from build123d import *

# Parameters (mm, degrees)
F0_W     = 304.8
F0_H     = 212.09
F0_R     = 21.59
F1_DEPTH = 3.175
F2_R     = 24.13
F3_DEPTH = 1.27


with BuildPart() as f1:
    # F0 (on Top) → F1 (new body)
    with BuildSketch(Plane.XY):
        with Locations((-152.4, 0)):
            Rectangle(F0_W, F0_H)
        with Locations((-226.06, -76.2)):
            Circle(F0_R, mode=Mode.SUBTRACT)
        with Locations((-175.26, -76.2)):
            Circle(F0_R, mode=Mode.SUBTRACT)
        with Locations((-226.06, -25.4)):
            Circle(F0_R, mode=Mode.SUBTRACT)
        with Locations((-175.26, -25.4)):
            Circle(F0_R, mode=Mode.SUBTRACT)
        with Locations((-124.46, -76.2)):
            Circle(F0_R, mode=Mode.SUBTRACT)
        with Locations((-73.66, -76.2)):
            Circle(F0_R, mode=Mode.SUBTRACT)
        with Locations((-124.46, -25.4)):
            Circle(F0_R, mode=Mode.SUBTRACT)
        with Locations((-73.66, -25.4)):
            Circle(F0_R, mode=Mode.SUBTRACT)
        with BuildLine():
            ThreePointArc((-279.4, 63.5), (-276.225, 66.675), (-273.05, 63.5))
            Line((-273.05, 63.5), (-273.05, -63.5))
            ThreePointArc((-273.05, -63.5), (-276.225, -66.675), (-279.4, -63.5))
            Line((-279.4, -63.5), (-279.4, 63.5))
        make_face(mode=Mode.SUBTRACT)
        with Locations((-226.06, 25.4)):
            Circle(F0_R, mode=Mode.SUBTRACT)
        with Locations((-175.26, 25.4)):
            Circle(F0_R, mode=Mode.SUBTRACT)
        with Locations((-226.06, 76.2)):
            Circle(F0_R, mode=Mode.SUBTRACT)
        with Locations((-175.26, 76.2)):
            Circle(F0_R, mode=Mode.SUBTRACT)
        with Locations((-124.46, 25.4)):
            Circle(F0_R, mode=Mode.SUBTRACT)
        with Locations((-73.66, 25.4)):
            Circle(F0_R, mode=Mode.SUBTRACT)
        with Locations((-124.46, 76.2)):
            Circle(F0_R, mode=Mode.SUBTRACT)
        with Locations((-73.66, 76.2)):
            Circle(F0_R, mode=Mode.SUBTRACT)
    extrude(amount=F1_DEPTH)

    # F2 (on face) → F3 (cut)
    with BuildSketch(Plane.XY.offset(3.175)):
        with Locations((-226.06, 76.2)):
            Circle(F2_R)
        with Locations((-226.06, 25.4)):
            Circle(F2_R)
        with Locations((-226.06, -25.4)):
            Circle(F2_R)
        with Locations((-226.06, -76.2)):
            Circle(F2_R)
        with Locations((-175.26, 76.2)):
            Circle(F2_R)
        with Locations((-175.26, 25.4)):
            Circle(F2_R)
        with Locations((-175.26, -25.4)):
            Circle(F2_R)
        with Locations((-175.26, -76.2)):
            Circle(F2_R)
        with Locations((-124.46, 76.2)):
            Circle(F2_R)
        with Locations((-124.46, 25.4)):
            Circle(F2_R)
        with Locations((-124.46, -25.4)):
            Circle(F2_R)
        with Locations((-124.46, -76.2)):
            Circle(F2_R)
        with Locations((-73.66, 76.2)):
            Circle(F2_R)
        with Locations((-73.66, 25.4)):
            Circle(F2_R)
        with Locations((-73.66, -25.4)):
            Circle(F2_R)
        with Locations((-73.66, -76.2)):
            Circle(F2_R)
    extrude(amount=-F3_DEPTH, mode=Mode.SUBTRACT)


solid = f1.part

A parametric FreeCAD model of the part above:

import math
import FreeCAD as App
import Part
import Sketcher
from FreeCAD import Vector
Q = App.Units.Quantity

doc = App.newDocument("Part")
params = doc.addObject("Spreadsheet::Sheet", "Params")
for row, (alias, value) in enumerate([
    ("sketch1_diameter", "1.7 in"),
    ("sketch1_width", "12 in"),
    ("sketch1_height", "5 in"),
    ("sketch1_radius", "0.125 in"),
    ("sketch1_height2", "8.35 in"),
    ("pad1_length", "0.125 in"),
    ("sketch2_diameter", "1.9 in"),
    ("pocket1_length", "0.05 in"),
], start=1):
    params.set(f"A{row}", alias)
    params.set(f"B{row}", "=" + value)
    params.setAlias(f"B{row}", alias)

body = doc.addObject("PartDesign::Body", "Body")

# Sketch on XY plane
sketch1 = body.newObject("Sketcher::SketchObject", "Sketch")
sketch1.AttachmentSupport = (doc.getObject("XY_Plane"), [""])
sketch1.MapMode = "FlatFace"
sketch1.addGeometry(Part.LineSegment(Vector(-304.8, 106.045, 0), Vector(-304.8, -106.045, 0)), False)
sketch1.addGeometry(Part.LineSegment(Vector(-304.8, -106.045, 0), Vector(0, -106.045, 0)), False)
sketch1.addGeometry(Part.LineSegment(Vector(0, -106.045, 0), Vector(0, 106.045, 0)), False)
sketch1.addGeometry(Part.LineSegment(Vector(0, 106.045, 0), Vector(-304.8, 106.045, 0)), False)
sketch1.addGeometry(Part.Circle(Vector(-226.06, -76.2, 0), Vector(0, 0, 1), 21.59), False)
sketch1.addGeometry(Part.Circle(Vector(-175.26, -76.2, 0), Vector(0, 0, 1), 21.59), False)
sketch1.addGeometry(Part.Circle(Vector(-226.06, -25.4, 0), Vector(0, 0, 1), 21.59), False)
sketch1.addGeometry(Part.Circle(Vector(-175.26, -25.4, 0), Vector(0, 0, 1), 21.59), False)
sketch1.addGeometry(Part.Circle(Vector(-124.46, -76.2, 0), Vector(0, 0, 1), 21.59), False)
sketch1.addGeometry(Part.Circle(Vector(-73.66, -76.2, 0), Vector(0, 0, 1), 21.59), False)
sketch1.addGeometry(Part.Circle(Vector(-124.46, -25.4, 0), Vector(0, 0, 1), 21.59), False)
sketch1.addGeometry(Part.Circle(Vector(-73.66, -25.4, 0), Vector(0, 0, 1), 21.59), False)
sketch1.addGeometry(Part.LineSegment(Vector(-279.4, -63.5, 0), Vector(-279.4, 63.5, 0)), False)
sketch1.addGeometry(Part.ArcOfCircle(Part.Circle(Vector(-276.225, 63.5, 0), Vector(0, 0, 1), 3.175), math.radians(0), math.radians(180)), False)
sketch1.addGeometry(Part.LineSegment(Vector(-273.05, 63.5, 0), Vector(-273.05, -63.5, 0)), False)
sketch1.addGeometry(Part.ArcOfCircle(Part.Circle(Vector(-276.225, -63.5, 0), Vector(0, 0, 1), 3.175), math.radians(180), math.radians(360)), False)
sketch1.addGeometry(Part.Circle(Vector(-226.06, 25.4, 0), Vector(0, 0, 1), 21.59), False)
sketch1.addGeometry(Part.Circle(Vector(-175.26, 25.4, 0), Vector(0, 0, 1), 21.59), False)
sketch1.addGeometry(Part.Circle(Vector(-226.06, 76.2, 0), Vector(0, 0, 1), 21.59), False)
sketch1.addGeometry(Part.Circle(Vector(-175.26, 76.2, 0), Vector(0, 0, 1), 21.59), False)
sketch1.addGeometry(Part.Circle(Vector(-124.46, 25.4, 0), Vector(0, 0, 1), 21.59), False)
sketch1.addGeometry(Part.Circle(Vector(-73.66, 25.4, 0), Vector(0, 0, 1), 21.59), False)
sketch1.addGeometry(Part.Circle(Vector(-124.46, 76.2, 0), Vector(0, 0, 1), 21.59), False)
sketch1.addGeometry(Part.Circle(Vector(-73.66, 76.2, 0), Vector(0, 0, 1), 21.59), False)
sketch1.addConstraint(Sketcher.Constraint("Coincident", 0, 2, 1, 1))
sketch1.addConstraint(Sketcher.Constraint("Coincident", 1, 2, 2, 1))
sketch1.addConstraint(Sketcher.Constraint("Coincident", 2, 2, 3, 1))
sketch1.addConstraint(Sketcher.Constraint("Coincident", 3, 2, 0, 1))
sketch1.addConstraint(Sketcher.Constraint("Tangent", 12, 2, 13, 2))
sketch1.addConstraint(Sketcher.Constraint("Tangent", 13, 1, 14, 1))
sketch1.addConstraint(Sketcher.Constraint("Tangent", 14, 2, 15, 2))
sketch1.addConstraint(Sketcher.Constraint("Tangent", 15, 1, 12, 1))
sketch1.addConstraint(Sketcher.Constraint("Vertical", 0))
sketch1.addConstraint(Sketcher.Constraint("Horizontal", 1))
sketch1.addConstraint(Sketcher.Constraint("Vertical", 2))
sketch1.addConstraint(Sketcher.Constraint("Horizontal", 3))
sketch1.addConstraint(Sketcher.Constraint("Vertical", 12))
sketch1.addConstraint(Sketcher.Constraint("Vertical", 14))
sketch1.addConstraint(Sketcher.Constraint("Equal", 4, 5))
sketch1.addConstraint(Sketcher.Constraint("Equal", 5, 6))
sketch1.addConstraint(Sketcher.Constraint("Equal", 6, 7))
sketch1.addConstraint(Sketcher.Constraint("Equal", 7, 8))
sketch1.addConstraint(Sketcher.Constraint("Equal", 8, 9))
sketch1.addConstraint(Sketcher.Constraint("Equal", 9, 10))
sketch1.addConstraint(Sketcher.Constraint("Equal", 10, 11))
sketch1.addConstraint(Sketcher.Constraint("Equal", 11, 16))
sketch1.addConstraint(Sketcher.Constraint("Equal", 16, 17))
sketch1.addConstraint(Sketcher.Constraint("Equal", 17, 18))
sketch1.addConstraint(Sketcher.Constraint("Equal", 18, 19))
sketch1.addConstraint(Sketcher.Constraint("Equal", 19, 20))
sketch1.addConstraint(Sketcher.Constraint("Equal", 20, 21))
sketch1.addConstraint(Sketcher.Constraint("Equal", 21, 22))
sketch1.addConstraint(Sketcher.Constraint("Equal", 22, 23))
sketch1.addConstraint(Sketcher.Constraint("Symmetric", 1, 2, 2, 2, -1, 1))
sketch1.addConstraint(Sketcher.Constraint("Symmetric", 6, 3, 16, 3, -1))
sketch1.addConstraint(Sketcher.Constraint("Symmetric", 7, 3, 17, 3, -1))
sketch1.addConstraint(Sketcher.Constraint("Symmetric", 4, 3, 18, 3, -1))
sketch1.addConstraint(Sketcher.Constraint("Symmetric", 5, 3, 19, 3, -1))
sketch1.addConstraint(Sketcher.Constraint("Symmetric", 10, 3, 20, 3, -1))
sketch1.addConstraint(Sketcher.Constraint("Symmetric", 11, 3, 21, 3, -1))
sketch1.addConstraint(Sketcher.Constraint("Symmetric", 8, 3, 22, 3, -1))
sketch1.addConstraint(Sketcher.Constraint("Symmetric", 9, 3, 23, 3, -1))
sketch1.addConstraint(Sketcher.Constraint("Horizontal", 4, 3, 5, 3))
sketch1.addConstraint(Sketcher.Constraint("Horizontal", 6, 3, 7, 3))
sketch1.addConstraint(Sketcher.Constraint("Horizontal", 5, 3, 8, 3))
sketch1.addConstraint(Sketcher.Constraint("Horizontal", 8, 3, 9, 3))
sketch1.addConstraint(Sketcher.Constraint("Horizontal", 7, 3, 10, 3))
sketch1.addConstraint(Sketcher.Constraint("Horizontal", 10, 3, 11, 3))
sketch1.addConstraint(Sketcher.Constraint("Vertical", 4, 3, 6, 3))
sketch1.addConstraint(Sketcher.Constraint("Vertical", 5, 3, 7, 3))
sketch1.addConstraint(Sketcher.Constraint("Vertical", 8, 3, 10, 3))
sketch1.addConstraint(Sketcher.Constraint("Vertical", 9, 3, 11, 3))
sketch1.addConstraint(Sketcher.Constraint("Diameter", 4, Q("1.7 in")))
sketch1.addConstraint(Sketcher.Constraint("DistanceX", 1, 1, 1, 2, Q("12 in")))
sketch1.addConstraint(Sketcher.Constraint("DistanceY", 12, 1, 12, 2, Q("5 in")))
sketch1.addConstraint(Sketcher.Constraint("DistanceY", 4, 3, -1, 1, Q("3 in")))
sketch1.addConstraint(Sketcher.Constraint("DistanceY", 6, 3, -1, 1, Q("1 in")))
sketch1.addConstraint(Sketcher.Constraint("DistanceX", 12, 2, -1, 1, Q("11 in")))
sketch1.addConstraint(Sketcher.Constraint("Radius", 13, Q("0.125 in")))
sketch1.addConstraint(Sketcher.Constraint("DistanceX", 4, 3, 5, 3, Q("2 in")))
sketch1.addConstraint(Sketcher.Constraint("DistanceX", 5, 3, 8, 3, Q("2 in")))
sketch1.addConstraint(Sketcher.Constraint("DistanceX", 8, 3, 9, 3, Q("2 in")))
sketch1.addConstraint(Sketcher.Constraint("DistanceY", 0, 2, 0, 1, Q("8.35 in")))
sketch1.addConstraint(Sketcher.Constraint("DistanceX", 4, 3, -1, 1, Q("8.9 in")))
sketch1.addConstraint(Sketcher.Constraint("DistanceY", -1, 1, 13, 3, Q("2.5 in")))
sketch1.setExpression("Constraints[48]", "Params.sketch1_diameter")
sketch1.setExpression("Constraints[49]", "Params.sketch1_width")
sketch1.setExpression("Constraints[50]", "Params.sketch1_height")
sketch1.setExpression("Constraints[54]", "Params.sketch1_radius")
sketch1.setExpression("Constraints[58]", "Params.sketch1_height2")
pad1 = body.newObject("PartDesign::Pad", "Pad")
pad1.Profile = sketch1
pad1.setExpression("Length", "Params.pad1_length")

# Sketch on XY plane
sketch2 = body.newObject("Sketcher::SketchObject", "Sketch001")
sketch2.AttachmentSupport = (doc.getObject("XY_Plane"), [""])
sketch2.MapMode = "FlatFace"
sketch2.AttachmentOffset = App.Placement(Vector(0, 0, 0.125 * 25.4), App.Rotation())
sketch2.addGeometry(Part.Circle(Vector(-226.06, 76.2, 0), Vector(0, 0, 1), 24.13), False)
sketch2.addGeometry(Part.Circle(Vector(-226.06, 25.4, 0), Vector(0, 0, 1), 24.13), False)
sketch2.addGeometry(Part.Circle(Vector(-226.06, -25.4, 0), Vector(0, 0, 1), 24.13), False)
sketch2.addGeometry(Part.Circle(Vector(-226.06, -76.2, 0), Vector(0, 0, 1), 24.13), False)
sketch2.addGeometry(Part.Circle(Vector(-175.26, 76.2, 0), Vector(0, 0, 1), 24.13), False)
sketch2.addGeometry(Part.Circle(Vector(-175.26, 25.4, 0), Vector(0, 0, 1), 24.13), False)
sketch2.addGeometry(Part.Circle(Vector(-175.26, -25.4, 0), Vector(0, 0, 1), 24.13), False)
sketch2.addGeometry(Part.Circle(Vector(-175.26, -76.2, 0), Vector(0, 0, 1), 24.13), False)
sketch2.addGeometry(Part.Circle(Vector(-124.46, 76.2, 0), Vector(0, 0, 1), 24.13), False)
sketch2.addGeometry(Part.Circle(Vector(-124.46, 25.4, 0), Vector(0, 0, 1), 24.13), False)
sketch2.addGeometry(Part.Circle(Vector(-124.46, -25.4, 0), Vector(0, 0, 1), 24.13), False)
sketch2.addGeometry(Part.Circle(Vector(-124.46, -76.2, 0), Vector(0, 0, 1), 24.13), False)
sketch2.addGeometry(Part.Circle(Vector(-73.66, 76.2, 0), Vector(0, 0, 1), 24.13), False)
sketch2.addGeometry(Part.Circle(Vector(-73.66, 25.4, 0), Vector(0, 0, 1), 24.13), False)
sketch2.addGeometry(Part.Circle(Vector(-73.66, -25.4, 0), Vector(0, 0, 1), 24.13), False)
sketch2.addGeometry(Part.Circle(Vector(-73.66, -76.2, 0), Vector(0, 0, 1), 24.13), False)
sketch2.addConstraint(Sketcher.Constraint("Equal", 0, 1))
sketch2.addConstraint(Sketcher.Constraint("Equal", 1, 2))
sketch2.addConstraint(Sketcher.Constraint("Equal", 2, 3))
sketch2.addConstraint(Sketcher.Constraint("Equal", 3, 4))
sketch2.addConstraint(Sketcher.Constraint("Equal", 4, 5))
sketch2.addConstraint(Sketcher.Constraint("Equal", 5, 6))
sketch2.addConstraint(Sketcher.Constraint("Equal", 6, 7))
sketch2.addConstraint(Sketcher.Constraint("Equal", 7, 8))
sketch2.addConstraint(Sketcher.Constraint("Equal", 8, 9))
sketch2.addConstraint(Sketcher.Constraint("Equal", 9, 10))
sketch2.addConstraint(Sketcher.Constraint("Equal", 10, 11))
sketch2.addConstraint(Sketcher.Constraint("Equal", 11, 12))
sketch2.addConstraint(Sketcher.Constraint("Equal", 12, 13))
sketch2.addConstraint(Sketcher.Constraint("Equal", 13, 14))
sketch2.addConstraint(Sketcher.Constraint("Equal", 14, 15))
sketch2.addConstraint(Sketcher.Constraint("Symmetric", 1, 3, 2, 3, -1))
sketch2.addConstraint(Sketcher.Constraint("Symmetric", 0, 3, 3, 3, -1))
sketch2.addConstraint(Sketcher.Constraint("Symmetric", 5, 3, 6, 3, -1))
sketch2.addConstraint(Sketcher.Constraint("Symmetric", 4, 3, 7, 3, -1))
sketch2.addConstraint(Sketcher.Constraint("Symmetric", 9, 3, 10, 3, -1))
sketch2.addConstraint(Sketcher.Constraint("Symmetric", 8, 3, 11, 3, -1))
sketch2.addConstraint(Sketcher.Constraint("Symmetric", 13, 3, 14, 3, -1))
sketch2.addConstraint(Sketcher.Constraint("Symmetric", 12, 3, 15, 3, -1))
sketch2.addConstraint(Sketcher.Constraint("Horizontal", 0, 3, 4, 3))
sketch2.addConstraint(Sketcher.Constraint("Horizontal", 1, 3, 5, 3))
sketch2.addConstraint(Sketcher.Constraint("Horizontal", 4, 3, 8, 3))
sketch2.addConstraint(Sketcher.Constraint("Horizontal", 5, 3, 9, 3))
sketch2.addConstraint(Sketcher.Constraint("Horizontal", 8, 3, 12, 3))
sketch2.addConstraint(Sketcher.Constraint("Horizontal", 9, 3, 13, 3))
sketch2.addConstraint(Sketcher.Constraint("Vertical", 0, 3, 1, 3))
sketch2.addConstraint(Sketcher.Constraint("Vertical", 4, 3, 5, 3))
sketch2.addConstraint(Sketcher.Constraint("Vertical", 8, 3, 9, 3))
sketch2.addConstraint(Sketcher.Constraint("Vertical", 12, 3, 13, 3))
sketch2.addConstraint(Sketcher.Constraint("Diameter", 0, Q("1.9 in")))
sketch2.addConstraint(Sketcher.Constraint("DistanceY", -1, 1, 0, 3, Q("3 in")))
sketch2.addConstraint(Sketcher.Constraint("DistanceY", -1, 1, 1, 3, Q("1 in")))
sketch2.addConstraint(Sketcher.Constraint("DistanceX", 0, 3, 4, 3, Q("2 in")))
sketch2.addConstraint(Sketcher.Constraint("DistanceX", 4, 3, 8, 3, Q("2 in")))
sketch2.addConstraint(Sketcher.Constraint("DistanceX", 8, 3, 12, 3, Q("2 in")))
sketch2.addConstraint(Sketcher.Constraint("DistanceX", 0, 3, -1, 1, Q("8.9 in")))
sketch2.setExpression("Constraints[33]", "Params.sketch2_diameter")
pocket1 = body.newObject("PartDesign::Pocket", "Pocket")
pocket1.Profile = sketch2
pocket1.setExpression("Length", "Params.pocket1_length")

doc.recompute()
